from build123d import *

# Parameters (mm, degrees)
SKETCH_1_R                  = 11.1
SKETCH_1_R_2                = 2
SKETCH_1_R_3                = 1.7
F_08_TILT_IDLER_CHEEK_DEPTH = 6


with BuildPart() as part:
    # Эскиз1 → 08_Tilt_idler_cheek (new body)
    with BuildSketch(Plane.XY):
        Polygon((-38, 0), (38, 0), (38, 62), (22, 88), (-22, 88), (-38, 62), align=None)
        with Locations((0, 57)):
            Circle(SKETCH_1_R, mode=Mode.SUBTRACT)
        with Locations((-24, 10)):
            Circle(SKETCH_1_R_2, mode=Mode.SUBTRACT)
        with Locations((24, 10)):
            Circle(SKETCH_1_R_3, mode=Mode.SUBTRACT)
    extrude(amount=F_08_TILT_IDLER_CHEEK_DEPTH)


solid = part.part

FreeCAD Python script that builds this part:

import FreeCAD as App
import Part
import Sketcher

V = App.Vector
Q = App.Units.Quantity


def add_polygon(sketch, points):
    """Adds a closed chain of lines whose ends are joined by coincident constraints."""
    first, n = sketch.GeometryCount, len(points)
    for a, b in zip(points, points[1:] + points[:1]):
        sketch.addGeometry(Part.LineSegment(App.Vector(*a, 0), App.Vector(*b, 0)), False)
    for i in range(n):
        sketch.addConstraint(Sketcher.Constraint("Coincident", first + i, 2, first + (i + 1) % n, 1))

doc = App.newDocument("Part")
body = doc.addObject("PartDesign::Body", "Body")

sketch1 = body.newObject("Sketcher::SketchObject", "Sketch")
sketch1.AttachmentSupport = (doc.getObject("XY_Plane"), [""])
sketch1.MapMode = "FlatFace"
add_polygon(sketch1, [(-38, 0), (38, 0), (38, 62), (22, 88), (-22, 88), (-38, 62)])
sketch1.addGeometry(Part.Circle(V(-24, 10, 0), V(0, 0, 1), 2), False)
sketch1.addGeometry(Part.Circle(V(24, 10, 0), V(0, 0, 1), 1.7), False)
sketch1.addGeometry(Part.Circle(V(0, 57, 0), V(0, 0, 1), 11.1), False)
sketch1.addConstraint(Sketcher.Constraint("Horizontal", 0))
sketch1.addConstraint(Sketcher.Constraint("Vertical", 1))
sketch1.addConstraint(Sketcher.Constraint("Horizontal", 3))
sketch1.addConstraint(Sketcher.Constraint("Vertical", 5))
sketch1.addConstraint(Sketcher.Constraint("Symmetric", 0, 2, 5, 2, -1, 1))
sketch1.addConstraint(Sketcher.Constraint("Symmetric", 6, 3, 7, 3, -2))
sketch1.addConstraint(Sketcher.Constraint("PointOnObject", 8, 3, -2))
sketch1.addConstraint(Sketcher.Constraint("Horizontal", 1, 2, 4, 2))
sketch1.addConstraint(Sketcher.Constraint("Equal", 2, 4))
sketch1.addConstraint(Sketcher.Constraint("Diameter", 6, Q("4 mm")))
sketch1.addConstraint(Sketcher.Constraint("Diameter", 7, Q("3.4 mm")))
sketch1.addConstraint(Sketcher.Constraint("Diameter", 8, Q("22.2 mm")))
sketch1.addConstraint(Sketcher.Constraint("DistanceX", 0, 1, 0, 2, Q("76 mm")))
sketch1.addConstraint(Sketcher.Constraint("DistanceX", 3, 2, 3, 1, Q("44 mm")))
sketch1.addConstraint(Sketcher.Constraint("DistanceY", 1, 1, 1, 2, Q("62 mm")))
sketch1.addConstraint(Sketcher.Constraint("DistanceX", 6, 3, -1, 1, Q("24 mm")))
sketch1.addConstraint(Sketcher.Constraint("DistanceY", -1, 1, 6, 3, Q("10 mm")))
sketch1.addConstraint(Sketcher.Constraint("DistanceY", -1, 1, 8, 3, Q("57 mm")))
sketch1.addConstraint(Sketcher.Constraint("DistanceY", -1, 1, 2, 2, Q("88 mm")))
pad1 = body.newObject("PartDesign::Pad", "Pad")
pad1.Profile = sketch1
pad1.Length = 6

doc.recompute()
